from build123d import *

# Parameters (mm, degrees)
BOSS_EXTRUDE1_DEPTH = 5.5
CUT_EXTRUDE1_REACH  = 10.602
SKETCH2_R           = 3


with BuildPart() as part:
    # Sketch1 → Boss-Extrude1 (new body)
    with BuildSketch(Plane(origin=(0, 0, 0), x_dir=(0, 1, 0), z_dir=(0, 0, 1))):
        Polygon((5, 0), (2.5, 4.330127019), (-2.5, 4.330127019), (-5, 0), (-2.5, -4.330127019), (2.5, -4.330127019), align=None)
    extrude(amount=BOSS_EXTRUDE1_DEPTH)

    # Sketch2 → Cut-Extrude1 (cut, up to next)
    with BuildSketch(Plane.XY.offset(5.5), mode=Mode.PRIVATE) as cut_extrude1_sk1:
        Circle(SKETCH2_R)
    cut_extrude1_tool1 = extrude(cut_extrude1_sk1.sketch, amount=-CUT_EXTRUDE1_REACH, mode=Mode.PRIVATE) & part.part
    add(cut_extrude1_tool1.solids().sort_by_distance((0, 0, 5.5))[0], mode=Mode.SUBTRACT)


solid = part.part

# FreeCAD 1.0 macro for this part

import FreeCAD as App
import Part
import Sketcher
Q = App.Units.Quantity


def add_polygon(sketch, points):
    """Adds a closed chain of lines whose ends are joined by coincident constraints."""
    first, n = sketch.GeometryCount, len(points)
    for a, b in zip(points, points[1:] + points[:1]):
        sketch.addGeometry(Part.LineSegment(App.Vector(*a, 0), App.Vector(*b, 0)), False)
    for i in range(n):
        sketch.addConstraint(Sketcher.Constraint("Coincident", first + i, 2, first + (i + 1) % n, 1))

doc = App.newDocument("Part")
params = doc.addObject("Spreadsheet::Sheet", "Params")
for row, (alias, value) in enumerate([
    ("sketch1_height", "5 mm"),
    ("sketch1_length", "5 mm"),
    ("pad1_length", "5.5 mm"),
    ("sketch2_diameter", "6 mm"),
], start=1):
    params.set(f"A{row}", alias)
    params.set(f"B{row}", "=" + value)
    params.setAlias(f"B{row}", alias)

body = doc.addObject("PartDesign::Body", "Body")

# Sketch on XY plane
sketch1 = body.newObject("Sketcher::SketchObject", "Sketch")
sketch1.AttachmentSupport = (doc.getObject("XY_Plane"), [""])
sketch1.MapMode = "FlatFace"
add_polygon(sketch1, [(0, 5), (-4, 2), (-4, -2), (0, -5), (4, -2), (4, 2)])  # lines 0-5
sketch1.addConstraint([
    Sketcher.Constraint("Vertical", 1),
    Sketcher.Constraint("Vertical", 4),
    Sketcher.Constraint("Symmetric", 0, 2, 3, 2, -1, 1),
    Sketcher.Constraint("Symmetric", 2, 2, 5, 2, -1, 1),
    Sketcher.Constraint("PointOnObject", 2, 2, -2),
    Sketcher.Constraint("Parallel", 2, 5),
    Sketcher.Constraint("Horizontal", 1, 2, 3, 2),
    Sketcher.Constraint("DistanceY", 1, 2, 1, 1, Q("5 mm")),
    Sketcher.Constraint("Angle", 0, Q("-150 deg")),
    Sketcher.Constraint("Distance", 0, Q("5 mm")),
])
sketch1.setExpression("Constraints[13]", "Params.sketch1_height")
sketch1.setExpression("Constraints[15]", "Params.sketch1_length")
pad1 = body.newObject("PartDesign::Pad", "Pad")
pad1.Profile = sketch1
pad1.setExpression("Length", "Params.pad1_length")

# Sketch on XY plane
sketch2 = body.newObject("Sketcher::SketchObject", "Sketch001")
sketch2.AttachmentSupport = (doc.getObject("XY_Plane"), [""])
sketch2.MapMode = "FlatFace"
sketch2.AttachmentOffset = App.Placement(App.Vector(0, 0, 5.5), App.Rotation())
sketch2.addGeometry(Part.Circle(App.Vector(0, 0, 0), App.Vector(0, 0, 1), 3), False)
sketch2.addConstraint([
    Sketcher.Constraint("Coincident", 0, 3, -1, 1),
    Sketcher.Constraint("Diameter", 0, Q("6 mm")),
])
sketch2.setExpression("Constraints[1]", "Params.sketch2_diameter")
pocket1 = body.newObject("PartDesign::Pocket", "Pocket")
pocket1.Profile = sketch2
pocket1.Type = "UpToFirst"

doc.recompute()
